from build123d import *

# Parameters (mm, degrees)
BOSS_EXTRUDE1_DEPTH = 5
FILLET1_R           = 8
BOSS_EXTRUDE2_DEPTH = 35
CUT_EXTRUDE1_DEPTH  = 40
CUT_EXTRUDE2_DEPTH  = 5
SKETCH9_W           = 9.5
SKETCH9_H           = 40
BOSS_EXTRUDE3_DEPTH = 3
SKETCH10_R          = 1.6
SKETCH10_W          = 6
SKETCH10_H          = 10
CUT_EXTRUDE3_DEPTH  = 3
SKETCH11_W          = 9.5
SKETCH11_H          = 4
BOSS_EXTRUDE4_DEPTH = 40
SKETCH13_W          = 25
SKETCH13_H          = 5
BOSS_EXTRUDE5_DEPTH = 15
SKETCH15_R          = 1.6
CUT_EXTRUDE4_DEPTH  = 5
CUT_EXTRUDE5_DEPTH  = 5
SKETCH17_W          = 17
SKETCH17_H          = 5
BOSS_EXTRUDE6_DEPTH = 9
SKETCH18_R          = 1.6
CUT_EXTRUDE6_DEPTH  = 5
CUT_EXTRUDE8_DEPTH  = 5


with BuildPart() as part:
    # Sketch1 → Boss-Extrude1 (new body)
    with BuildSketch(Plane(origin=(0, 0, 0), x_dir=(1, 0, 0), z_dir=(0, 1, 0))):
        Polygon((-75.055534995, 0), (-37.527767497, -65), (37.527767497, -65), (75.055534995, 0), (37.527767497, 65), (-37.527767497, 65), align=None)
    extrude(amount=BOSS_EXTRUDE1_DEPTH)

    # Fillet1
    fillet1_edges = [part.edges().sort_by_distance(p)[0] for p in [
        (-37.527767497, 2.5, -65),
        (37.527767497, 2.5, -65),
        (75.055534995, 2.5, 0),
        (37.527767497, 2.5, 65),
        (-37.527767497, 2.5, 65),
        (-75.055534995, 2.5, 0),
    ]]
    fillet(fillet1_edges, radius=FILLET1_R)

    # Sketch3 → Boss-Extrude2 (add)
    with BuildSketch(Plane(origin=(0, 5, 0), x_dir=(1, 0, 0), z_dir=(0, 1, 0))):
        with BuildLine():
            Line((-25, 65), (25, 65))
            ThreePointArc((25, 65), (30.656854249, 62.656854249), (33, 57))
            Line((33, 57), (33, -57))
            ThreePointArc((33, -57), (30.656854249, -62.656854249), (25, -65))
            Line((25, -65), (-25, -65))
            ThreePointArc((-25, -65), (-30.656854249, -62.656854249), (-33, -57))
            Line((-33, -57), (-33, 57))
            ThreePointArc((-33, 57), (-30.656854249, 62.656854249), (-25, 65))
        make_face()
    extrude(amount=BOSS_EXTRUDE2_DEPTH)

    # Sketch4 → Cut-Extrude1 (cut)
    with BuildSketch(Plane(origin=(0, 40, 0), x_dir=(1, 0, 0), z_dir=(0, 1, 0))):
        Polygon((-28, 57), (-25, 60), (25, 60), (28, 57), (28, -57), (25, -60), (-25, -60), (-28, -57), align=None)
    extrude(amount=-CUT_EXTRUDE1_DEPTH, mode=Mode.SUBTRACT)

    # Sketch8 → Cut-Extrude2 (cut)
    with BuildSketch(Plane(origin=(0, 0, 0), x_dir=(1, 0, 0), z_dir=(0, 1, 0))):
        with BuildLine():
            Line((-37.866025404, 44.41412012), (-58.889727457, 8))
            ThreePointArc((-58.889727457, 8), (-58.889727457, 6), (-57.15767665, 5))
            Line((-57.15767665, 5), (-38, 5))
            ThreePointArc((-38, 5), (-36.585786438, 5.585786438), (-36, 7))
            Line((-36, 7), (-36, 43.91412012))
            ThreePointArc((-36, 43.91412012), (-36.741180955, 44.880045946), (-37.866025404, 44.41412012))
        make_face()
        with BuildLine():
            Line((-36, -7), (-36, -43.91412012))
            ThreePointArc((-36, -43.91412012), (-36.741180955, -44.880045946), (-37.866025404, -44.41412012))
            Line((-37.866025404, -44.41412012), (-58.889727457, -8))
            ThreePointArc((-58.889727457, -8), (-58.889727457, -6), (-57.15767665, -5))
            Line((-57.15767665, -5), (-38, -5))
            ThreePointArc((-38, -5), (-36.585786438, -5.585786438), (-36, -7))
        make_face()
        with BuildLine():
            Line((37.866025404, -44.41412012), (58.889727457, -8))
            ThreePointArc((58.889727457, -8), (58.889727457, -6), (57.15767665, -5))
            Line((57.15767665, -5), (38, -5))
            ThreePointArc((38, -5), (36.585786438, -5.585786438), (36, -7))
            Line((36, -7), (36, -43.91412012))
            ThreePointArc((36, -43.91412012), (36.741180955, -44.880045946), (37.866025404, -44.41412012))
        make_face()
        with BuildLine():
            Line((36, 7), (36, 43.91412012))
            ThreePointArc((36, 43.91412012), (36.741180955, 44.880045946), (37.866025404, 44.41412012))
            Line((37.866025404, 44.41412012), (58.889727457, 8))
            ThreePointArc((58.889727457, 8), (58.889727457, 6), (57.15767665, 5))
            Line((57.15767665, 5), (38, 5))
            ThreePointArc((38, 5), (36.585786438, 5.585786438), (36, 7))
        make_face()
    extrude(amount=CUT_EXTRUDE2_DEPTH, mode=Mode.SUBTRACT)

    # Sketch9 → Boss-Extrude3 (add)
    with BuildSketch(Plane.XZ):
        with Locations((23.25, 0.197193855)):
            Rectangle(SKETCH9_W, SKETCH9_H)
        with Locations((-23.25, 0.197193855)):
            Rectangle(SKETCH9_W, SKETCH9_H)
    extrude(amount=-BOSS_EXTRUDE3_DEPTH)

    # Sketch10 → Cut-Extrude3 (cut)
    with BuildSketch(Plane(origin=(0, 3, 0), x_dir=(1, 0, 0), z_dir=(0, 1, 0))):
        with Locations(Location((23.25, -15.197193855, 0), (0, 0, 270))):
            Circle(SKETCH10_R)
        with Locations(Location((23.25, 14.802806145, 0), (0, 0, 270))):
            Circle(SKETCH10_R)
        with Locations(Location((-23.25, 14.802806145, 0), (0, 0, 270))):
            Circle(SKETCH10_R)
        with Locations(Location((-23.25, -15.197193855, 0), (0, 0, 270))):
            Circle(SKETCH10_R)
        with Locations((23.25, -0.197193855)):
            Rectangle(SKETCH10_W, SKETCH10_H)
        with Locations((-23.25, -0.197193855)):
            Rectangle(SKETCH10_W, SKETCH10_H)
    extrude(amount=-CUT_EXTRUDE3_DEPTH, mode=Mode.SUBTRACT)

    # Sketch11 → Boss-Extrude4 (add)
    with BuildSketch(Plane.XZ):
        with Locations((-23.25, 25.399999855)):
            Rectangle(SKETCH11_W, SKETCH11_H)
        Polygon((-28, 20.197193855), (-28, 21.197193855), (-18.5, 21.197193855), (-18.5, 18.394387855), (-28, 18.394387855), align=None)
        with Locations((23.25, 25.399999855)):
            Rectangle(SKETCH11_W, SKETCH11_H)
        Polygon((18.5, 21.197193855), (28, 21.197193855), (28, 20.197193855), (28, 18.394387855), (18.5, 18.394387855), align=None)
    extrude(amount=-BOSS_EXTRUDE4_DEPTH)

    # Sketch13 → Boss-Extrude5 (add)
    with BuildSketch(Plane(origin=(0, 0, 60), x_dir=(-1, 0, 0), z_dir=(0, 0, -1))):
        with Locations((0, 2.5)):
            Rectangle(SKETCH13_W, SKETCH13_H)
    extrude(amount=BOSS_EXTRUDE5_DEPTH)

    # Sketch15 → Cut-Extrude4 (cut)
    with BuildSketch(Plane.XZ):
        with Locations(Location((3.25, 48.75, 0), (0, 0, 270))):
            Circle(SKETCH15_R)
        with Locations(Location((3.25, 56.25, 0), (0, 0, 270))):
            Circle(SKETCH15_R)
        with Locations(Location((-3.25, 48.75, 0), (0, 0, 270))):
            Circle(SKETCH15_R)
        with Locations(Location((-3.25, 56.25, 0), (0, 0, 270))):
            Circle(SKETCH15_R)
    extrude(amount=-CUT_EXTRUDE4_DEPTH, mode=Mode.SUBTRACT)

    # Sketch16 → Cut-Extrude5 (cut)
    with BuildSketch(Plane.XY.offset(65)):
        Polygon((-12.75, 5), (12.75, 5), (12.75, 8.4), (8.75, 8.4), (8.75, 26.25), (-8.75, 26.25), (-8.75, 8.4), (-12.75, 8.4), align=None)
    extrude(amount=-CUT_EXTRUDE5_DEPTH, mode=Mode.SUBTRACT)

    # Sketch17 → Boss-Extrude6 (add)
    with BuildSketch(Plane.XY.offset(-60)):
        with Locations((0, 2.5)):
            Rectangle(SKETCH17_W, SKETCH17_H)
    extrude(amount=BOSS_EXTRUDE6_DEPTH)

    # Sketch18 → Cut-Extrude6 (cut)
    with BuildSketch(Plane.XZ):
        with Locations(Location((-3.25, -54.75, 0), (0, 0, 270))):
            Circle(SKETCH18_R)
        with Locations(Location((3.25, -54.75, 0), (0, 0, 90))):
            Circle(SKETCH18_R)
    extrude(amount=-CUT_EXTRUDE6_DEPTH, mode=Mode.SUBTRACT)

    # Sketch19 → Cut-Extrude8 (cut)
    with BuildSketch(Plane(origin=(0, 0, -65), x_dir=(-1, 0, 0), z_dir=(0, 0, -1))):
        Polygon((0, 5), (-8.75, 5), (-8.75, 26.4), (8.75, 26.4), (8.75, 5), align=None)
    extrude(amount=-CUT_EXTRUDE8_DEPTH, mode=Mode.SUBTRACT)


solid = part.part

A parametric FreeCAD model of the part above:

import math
import FreeCAD as App
import Part
import Sketcher
from FreeCAD import Vector
Q = App.Units.Quantity


def edges_at(feature, points):
    """Names of the edges that pass closest to the given points."""
    edges = feature.Shape.Edges
    near = lambda p: min(range(len(edges)), key=lambda i: edges[i].distToShape(Part.Vertex(*p))[0])
    return sorted({f"Edge{near(p) + 1}" for p in points})

doc = App.newDocument("Part")
body = doc.addObject("PartDesign::Body", "Body")

# Sketch on XZ plane
sketch1 = body.newObject("Sketcher::SketchObject", "Sketch")
sketch1.AttachmentSupport = (doc.getObject("XZ_Plane"), [""])
sketch1.MapMode = "FlatFace"
sketch1.addGeometry([
    Part.LineSegment(Vector(-75.055535, 0, 0), Vector(-37.527767, 65, 0)),  # 0
    Part.LineSegment(Vector(-37.527767, 65, 0), Vector(37.527767, 65, 0)),  # 1
    Part.LineSegment(Vector(37.527767, 65, 0), Vector(75.055535, 0, 0)),  # 2
    Part.LineSegment(Vector(75.055535, 0, 0), Vector(37.527767, -65, 0)),  # 3
    Part.LineSegment(Vector(37.527767, -65, 0), Vector(-37.527767, -65, 0)),  # 4
    Part.LineSegment(Vector(-37.527767, -65, 0), Vector(-75.055535, 0, 0)),  # 5
], False)
sketch1.addConstraint([
    Sketcher.Constraint("Coincident", 0, 2, 1, 1),
    Sketcher.Constraint("Coincident", 1, 2, 2, 1),
    Sketcher.Constraint("Coincident", 2, 2, 3, 1),
    Sketcher.Constraint("Coincident", 3, 2, 4, 1),
    Sketcher.Constraint("Coincident", 4, 2, 5, 1),
    Sketcher.Constraint("Coincident", 5, 2, 0, 1),
    Sketcher.Constraint("Horizontal", 1),
    Sketcher.Constraint("Horizontal", 4),
    Sketcher.Constraint("Symmetric", 0, 2, 3, 2, -1, 1),
    Sketcher.Constraint("Symmetric", 2, 2, 5, 2, -1, 1),
    Sketcher.Constraint("PointOnObject", 2, 2, -1),
    Sketcher.Constraint("Parallel", 2, 5),
    Sketcher.Constraint("Vertical", 1, 2, 3, 2),
    Sketcher.Constraint("Angle", 0, Q("60 deg")),
    Sketcher.Constraint("DistanceY", -1, 1, 0, 2, 65.0),
    Sketcher.Constraint("DistanceX", 1, 1, 1, 2, 75.055535),
])
pad1 = body.newObject("PartDesign::Pad", "Pad")
pad1.Profile = sketch1
pad1.Length = 5
pad1.Reversed = True
doc.recompute()

fillet = body.newObject("PartDesign::Fillet", "Fillet")
fillet.Base = (pad1, edges_at(pad1, [
    (-37.528, 2.5, -65),
    (37.528, 2.5, -65),
    (75.056, 2.5, 0),
    (37.528, 2.5, 65),
    (-37.528, 2.5, 65),
    (-75.056, 2.5, 0),
]))
fillet.Radius = 8

# Sketch on XZ plane
sketch2 = body.newObject("Sketcher::SketchObject", "Sketch001")
sketch2.AttachmentSupport = (doc.getObject("XZ_Plane"), [""])
sketch2.MapMode = "FlatFace"
sketch2.AttachmentOffset = App.Placement(Vector(0, 0, -5), App.Rotation())
sketch2.addGeometry([
    Part.LineSegment(Vector(25, -65, 0), Vector(-25, -65, 0)),  # 0
    Part.ArcOfCircle(Part.Circle(Vector(-25, -57, 0), Vector(0, 0, 1), 8), math.radians(-180), math.radians(-90)),  # 1
    Part.LineSegment(Vector(-33, -57, 0), Vector(-33, 57, 0)),  # 2
    Part.ArcOfCircle(Part.Circle(Vector(-25, 57, 0), Vector(0, 0, 1), 8), math.radians(90), math.radians(180)),  # 3
    Part.LineSegment(Vector(-25, 65, 0), Vector(25, 65, 0)),  # 4
    Part.ArcOfCircle(Part.Circle(Vector(25, 57, 0), Vector(0, 0, 1), 8), math.radians(0), math.radians(90)),  # 5
    Part.LineSegment(Vector(33, 57, 0), Vector(33, -57, 0)),  # 6
    Part.ArcOfCircle(Part.Circle(Vector(25, -57, 0), Vector(0, 0, 1), 8), math.radians(-90), math.radians(0)),  # 7
], False)
sketch2.addConstraint([
    Sketcher.Constraint("Tangent", 0, 2, 1, 2),
    Sketcher.Constraint("Tangent", 1, 1, 2, 1),
    Sketcher.Constraint("Tangent", 2, 2, 3, 2),
    Sketcher.Constraint("Tangent", 3, 1, 4, 1),
    Sketcher.Constraint("Tangent", 4, 2, 5, 2),
    Sketcher.Constraint("Tangent", 5, 1, 6, 1),
    Sketcher.Constraint("Tangent", 6, 2, 7, 2),
    Sketcher.Constraint("Tangent", 7, 1, 0, 1),
    Sketcher.Constraint("Horizontal", 0),
    Sketcher.Constraint("Vertical", 2),
    Sketcher.Constraint("Horizontal", 4),
    Sketcher.Constraint("Vertical", 6),
    Sketcher.Constraint("Equal", 1, 3),
    Sketcher.Constraint("Equal", 3, 5),
    Sketcher.Constraint("Equal", 5, 7),
    Sketcher.Constraint("Symmetric", 1, 3, 5, 3, -1, 1),
    Sketcher.Constraint("Radius", 1, 8.0),
    Sketcher.Constraint("DistanceX", 0, 2, 0, 1, 50.0),
    Sketcher.Constraint("DistanceY", 2, 1, 2, 2, 114.0),
])
pad2 = body.newObject("PartDesign::Pad", "Pad001")
pad2.Profile = sketch2
pad2.Length = 35
pad2.Reversed = True

# Sketch on XZ plane
sketch3 = body.newObject("Sketcher::SketchObject", "Sketch002")
sketch3.AttachmentSupport = (doc.getObject("XZ_Plane"), [""])
sketch3.MapMode = "FlatFace"
sketch3.AttachmentOffset = App.Placement(Vector(0, 0, -40), App.Rotation())
sketch3.addGeometry([
    Part.LineSegment(Vector(-25, -60, 0), Vector(-28, -57, 0)),  # 0
    Part.LineSegment(Vector(-28, -57, 0), Vector(-28, 57, 0)),  # 1
    Part.LineSegment(Vector(-28, 57, 0), Vector(-25, 60, 0)),  # 2
    Part.LineSegment(Vector(-25, 60, 0), Vector(25, 60, 0)),  # 3
    Part.LineSegment(Vector(25, 60, 0), Vector(28, 57, 0)),  # 4
    Part.LineSegment(Vector(28, 57, 0), Vector(28, -57, 0)),  # 5
    Part.LineSegment(Vector(28, -57, 0), Vector(25, -60, 0)),  # 6
    Part.LineSegment(Vector(25, -60, 0), Vector(-25, -60, 0)),  # 7
], False)
sketch3.addConstraint([
    Sketcher.Constraint("Coincident", 0, 2, 1, 1),
    Sketcher.Constraint("Coincident", 1, 2, 2, 1),
    Sketcher.Constraint("Coincident", 2, 2, 3, 1),
    Sketcher.Constraint("Coincident", 3, 2, 4, 1),
    Sketcher.Constraint("Coincident", 4, 2, 5, 1),
    Sketcher.Constraint("Coincident", 5, 2, 6, 1),
    Sketcher.Constraint("Coincident", 6, 2, 7, 1),
    Sketcher.Constraint("Coincident", 7, 2, 0, 1),
    Sketcher.Constraint("Vertical", 1),
    Sketcher.Constraint("Horizontal", 3),
    Sketcher.Constraint("Vertical", 5),
    Sketcher.Constraint("Horizontal", 7),
    Sketcher.Constraint("Symmetric", 0, 2, 4, 2, -1, 1),
    Sketcher.Constraint("Symmetric", 2, 2, 6, 2, -1, 1),
    Sketcher.Constraint("Perpendicular", 0, 2),
    Sketcher.Constraint("Perpendicular", 2, 4),
    Sketcher.Constraint("Perpendicular", 4, 6),
    Sketcher.Constraint("Horizontal", 1, 2, 4, 2),
    Sketcher.Constraint("Vertical", 3, 2, 6, 2),
    Sketcher.Constraint("DistanceX", 3, 1, 3, 2, 50.0),
    Sketcher.Constraint("DistanceY", 1, 1, 1, 2, 114.0),
    Sketcher.Constraint("DistanceX", 0, 2, -1, 1, 28.0),
])
pocket1 = body.newObject("PartDesign::Pocket", "Pocket")
pocket1.Profile = sketch3
pocket1.Length = 40
pocket1.Reversed = True

# Sketch on XZ plane
sketch4 = body.newObject("Sketcher::SketchObject", "Sketch003")
sketch4.AttachmentSupport = (doc.getObject("XZ_Plane"), [""])
sketch4.MapMode = "FlatFace"
sketch4.addGeometry([
    Part.LineSegment(Vector(-37.866025, -44.41412, 0), Vector(-58.889727, -8, 0)),  # 0
    Part.ArcOfCircle(Part.Circle(Vector(-57.157677, -7, 0), Vector(0, 0, 1), 2), math.radians(90), math.radians(210)),  # 1
    Part.LineSegment(Vector(-57.157677, -5, 0), Vector(-38, -5, 0)),  # 2
    Part.ArcOfCircle(Part.Circle(Vector(-38, -7, 0), Vector(0, 0, 1), 2), math.radians(0), math.radians(90)),  # 3
    Part.LineSegment(Vector(-36, -7, 0), Vector(-36, -43.91412, 0)),  # 4
    Part.ArcOfCircle(Part.Circle(Vector(-37, -43.91412, 0), Vector(0, 0, 1), 1), math.radians(-150), math.radians(0)),  # 5
    Part.LineSegment(Vector(-36, 43.91412, 0), Vector(-36, 7, 0)),  # 6
    Part.ArcOfCircle(Part.Circle(Vector(-38, 7, 0), Vector(0, 0, 1), 2), math.radians(-90), math.radians(0)),  # 7
    Part.LineSegment(Vector(-38, 5, 0), Vector(-57.157677, 5, 0)),  # 8
    Part.ArcOfCircle(Part.Circle(Vector(-57.157677, 7, 0), Vector(0, 0, 1), 2), math.radians(150), math.radians(270)),  # 9
    Part.LineSegment(Vector(-58.889727, 8, 0), Vector(-37.866025, 44.41412, 0)),  # 10
    Part.ArcOfCircle(Part.Circle(Vector(-37, 43.91412, 0), Vector(0, 0, 1), 1), math.radians(0), math.radians(150)),  # 11
    Part.LineSegment(Vector(37.866025, 44.41412, 0), Vector(58.889727, 8, 0)),  # 12
    Part.ArcOfCircle(Part.Circle(Vector(57.157677, 7, 0), Vector(0, 0, 1), 2), math.radians(-90), math.radians(30)),  # 13
    Part.LineSegment(Vector(57.157677, 5, 0), Vector(38, 5, 0)),  # 14
    Part.ArcOfCircle(Part.Circle(Vector(38, 7, 0), Vector(0, 0, 1), 2), math.radians(-180), math.radians(-90)),  # 15
    Part.LineSegment(Vector(36, 7, 0), Vector(36, 43.91412, 0)),  # 16
    Part.ArcOfCircle(Part.Circle(Vector(37, 43.91412, 0), Vector(0, 0, 1), 1), math.radians(30), math.radians(180)),  # 17
    Part.LineSegment(Vector(36, -43.91412, 0), Vector(36, -7, 0)),  # 18
    Part.ArcOfCircle(Part.Circle(Vector(38, -7, 0), Vector(0, 0, 1), 2), math.radians(90), math.radians(180)),  # 19
    Part.LineSegment(Vector(38, -5, 0), Vector(57.157677, -5, 0)),  # 20
    Part.ArcOfCircle(Part.Circle(Vector(57.157677, -7, 0), Vector(0, 0, 1), 2), math.radians(-30), math.radians(90)),  # 21
    Part.LineSegment(Vector(58.889727, -8, 0), Vector(37.866025, -44.41412, 0)),  # 22
    Part.ArcOfCircle(Part.Circle(Vector(37, -43.91412, 0), Vector(0, 0, 1), 1), math.radians(180), math.radians(330)),  # 23
], False)
sketch4.addConstraint([
    Sketcher.Constraint("Tangent", 0, 2, 1, 2),
    Sketcher.Constraint("Tangent", 1, 1, 2, 1),
    Sketcher.Constraint("Tangent", 2, 2, 3, 2),
    Sketcher.Constraint("Tangent", 3, 1, 4, 1),
    Sketcher.Constraint("Tangent", 4, 2, 5, 2),
    Sketcher.Constraint("Tangent", 5, 1, 0, 1),
    Sketcher.Constraint("Tangent", 6, 2, 7, 2),
    Sketcher.Constraint("Tangent", 7, 1, 8, 1),
    Sketcher.Constraint("Tangent", 8, 2, 9, 2),
    Sketcher.Constraint("Tangent", 9, 1, 10, 1),
    Sketcher.Constraint("Tangent", 10, 2, 11, 2),
    Sketcher.Constraint("Tangent", 11, 1, 6, 1),
    Sketcher.Constraint("Tangent", 12, 2, 13, 2),
    Sketcher.Constraint("Tangent", 13, 1, 14, 1),
    Sketcher.Constraint("Tangent", 14, 2, 15, 2),
    Sketcher.Constraint("Tangent", 15, 1, 16, 1),
    Sketcher.Constraint("Tangent", 16, 2, 17, 2),
    Sketcher.Constraint("Tangent", 17, 1, 12, 1),
    Sketcher.Constraint("Tangent", 18, 2, 19, 2),
    Sketcher.Constraint("Tangent", 19, 1, 20, 1),
    Sketcher.Constraint("Tangent", 20, 2, 21, 2),
    Sketcher.Constraint("Tangent", 21, 1, 22, 1),
    Sketcher.Constraint("Tangent", 22, 2, 23, 2),
    Sketcher.Constraint("Tangent", 23, 1, 18, 1),
    Sketcher.Constraint("Horizontal", 2),
    Sketcher.Constraint("Vertical", 4),
    Sketcher.Constraint("Vertical", 6),
    Sketcher.Constraint("Horizontal", 8),
    Sketcher.Constraint("Horizontal", 14),
    Sketcher.Constraint("Vertical", 16),
    Sketcher.Constraint("Vertical", 18),
    Sketcher.Constraint("Horizontal", 20),
    Sketcher.Constraint("Equal", 1, 3),
    Sketcher.Constraint("Equal", 3, 7),
    Sketcher.Constraint("Equal", 7, 9),
    Sketcher.Constraint("Equal", 5, 11),
    Sketcher.Constraint("Equal", 9, 13),
    Sketcher.Constraint("Equal", 13, 15),
    Sketcher.Constraint("Equal", 11, 17),
    Sketcher.Constraint("Equal", 15, 19),
    Sketcher.Constraint("Equal", 19, 21),
    Sketcher.Constraint("Equal", 17, 23),
    Sketcher.Constraint("Symmetric", 1, 3, 13, 3, -1, 1),
    Sketcher.Constraint("Symmetric", 5, 3, 17, 3, -1, 1),
    Sketcher.Constraint("Symmetric", 7, 3, 19, 3, -1, 1),
    Sketcher.Constraint("Symmetric", 9, 1, 21, 1, -1, 1),
    Sketcher.Constraint("Symmetric", 9, 3, 13, 3, -2),
    Sketcher.Constraint("Symmetric", 11, 3, 17, 3, -2),
    Sketcher.Constraint("Radius", 1, 2.0),
    Sketcher.Constraint("Radius", 5, 1.0),
    Sketcher.Constraint("Angle", 0, Q("120 deg")),
    Sketcher.Constraint("DistanceY", 1, 3, -1, 1, 7.0),
    Sketcher.Constraint("DistanceX", 3, 3, -1, 1, 38.0),
    Sketcher.Constraint("DistanceY", 4, 2, 4, 1, 36.91412),
])
pocket2 = body.newObject("PartDesign::Pocket", "Pocket001")
pocket2.Profile = sketch4
pocket2.Length = 5

# Sketch on XZ plane
sketch5 = body.newObject("Sketcher::SketchObject", "Sketch004")
sketch5.AttachmentSupport = (doc.getObject("XZ_Plane"), [""])
sketch5.MapMode = "FlatFace"
sketch5.addGeometry([
    Part.LineSegment(Vector(18.5, 20.197194, 0), Vector(18.5, -19.802806, 0)),  # 0
    Part.LineSegment(Vector(18.5, -19.802806, 0), Vector(28, -19.802806, 0)),  # 1
    Part.LineSegment(Vector(28, -19.802806, 0), Vector(28, 20.197194, 0)),  # 2
    Part.LineSegment(Vector(28, 20.197194, 0), Vector(18.5, 20.197194, 0)),  # 3
    Part.LineSegment(Vector(-28, 20.197194, 0), Vector(-28, -19.802806, 0)),  # 4
    Part.LineSegment(Vector(-28, -19.802806, 0), Vector(-18.5, -19.802806, 0)),  # 5
    Part.LineSegment(Vector(-18.5, -19.802806, 0), Vector(-18.5, 20.197194, 0)),  # 6
    Part.LineSegment(Vector(-18.5, 20.197194, 0), Vector(-28, 20.197194, 0)),  # 7
], False)
sketch5.addConstraint([
    Sketcher.Constraint("Coincident", 0, 2, 1, 1),
    Sketcher.Constraint("Coincident", 1, 2, 2, 1),
    Sketcher.Constraint("Coincident", 2, 2, 3, 1),
    Sketcher.Constraint("Coincident", 3, 2, 0, 1),
    Sketcher.Constraint("Coincident", 4, 2, 5, 1),
    Sketcher.Constraint("Coincident", 5, 2, 6, 1),
    Sketcher.Constraint("Coincident", 6, 2, 7, 1),
    Sketcher.Constraint("Coincident", 7, 2, 4, 1),
    Sketcher.Constraint("Vertical", 0),
    Sketcher.Constraint("Horizontal", 1),
    Sketcher.Constraint("Vertical", 2),
    Sketcher.Constraint("Horizontal", 3),
    Sketcher.Constraint("Vertical", 4),
    Sketcher.Constraint("Horizontal", 5),
    Sketcher.Constraint("Vertical", 6),
    Sketcher.Constraint("Horizontal", 7),
    Sketcher.Constraint("Symmetric", 1, 2, 4, 2, -2),
    Sketcher.Constraint("Symmetric", 3, 2, 6, 2, -2),
    Sketcher.Constraint("DistanceY", 0, 2, 0, 1, 40.0),
    Sketcher.Constraint("DistanceX", 1, 1, 1, 2, 9.5),
    Sketcher.Constraint("DistanceX", -1, 1, 1, 2, 28.0),
    Sketcher.Constraint("DistanceY", 0, 2, -1, 1, 19.802806),
])
pad3 = body.newObject("PartDesign::Pad", "Pad002")
pad3.Profile = sketch5
pad3.Length = 3
pad3.Reversed = True

# Sketch on XZ plane
sketch6 = body.newObject("Sketcher::SketchObject", "Sketch005")
sketch6.AttachmentSupport = (doc.getObject("XZ_Plane"), [""])
sketch6.MapMode = "FlatFace"
sketch6.AttachmentOffset = App.Placement(Vector(0, 0, -3), App.Rotation())
sketch6.addGeometry([
    Part.Circle(Vector(23.25, 15.197194, 0), Vector(0, 0, 1), 1.6),  # 0
    Part.Circle(Vector(23.25, -14.802806, 0), Vector(0, 0, 1), 1.6),  # 1
    Part.Circle(Vector(-23.25, -14.802806, 0), Vector(0, 0, 1), 1.6),  # 2
    Part.Circle(Vector(-23.25, 15.197194, 0), Vector(0, 0, 1), 1.6),  # 3
    Part.LineSegment(Vector(20.25, -4.802806, 0), Vector(20.25, 5.197194, 0)),  # 4
    Part.LineSegment(Vector(20.25, 5.197194, 0), Vector(26.25, 5.197194, 0)),  # 5
    Part.LineSegment(Vector(26.25, 5.197194, 0), Vector(26.25, -4.802806, 0)),  # 6
    Part.LineSegment(Vector(26.25, -4.802806, 0), Vector(20.25, -4.802806, 0)),  # 7
    Part.LineSegment(Vector(-26.25, -4.802806, 0), Vector(-26.25, 5.197194, 0)),  # 8
    Part.LineSegment(Vector(-26.25, 5.197194, 0), Vector(-20.25, 5.197194, 0)),  # 9
    Part.LineSegment(Vector(-20.25, 5.197194, 0), Vector(-20.25, -4.802806, 0)),  # 10
    Part.LineSegment(Vector(-20.25, -4.802806, 0), Vector(-26.25, -4.802806, 0)),  # 11
], False)
sketch6.addConstraint([
    Sketcher.Constraint("Coincident", 4, 2, 5, 1),
    Sketcher.Constraint("Coincident", 5, 2, 6, 1),
    Sketcher.Constraint("Coincident", 6, 2, 7, 1),
    Sketcher.Constraint("Coincident", 7, 2, 4, 1),
    Sketcher.Constraint("Coincident", 8, 2, 9, 1),
    Sketcher.Constraint("Coincident", 9, 2, 10, 1),
    Sketcher.Constraint("Coincident", 10, 2, 11, 1),
    Sketcher.Constraint("Coincident", 11, 2, 8, 1),
    Sketcher.Constraint("Vertical", 4),
    Sketcher.Constraint("Horizontal", 5),
    Sketcher.Constraint("Vertical", 6),
    Sketcher.Constraint("Horizontal", 7),
    Sketcher.Constraint("Vertical", 8),
    Sketcher.Constraint("Horizontal", 9),
    Sketcher.Constraint("Vertical", 10),
    Sketcher.Constraint("Horizontal", 11),
    Sketcher.Constraint("Equal", 0, 1),
    Sketcher.Constraint("Equal", 1, 2),
    Sketcher.Constraint("Equal", 2, 3),
    Sketcher.Constraint("Symmetric", 1, 3, 2, 3, -2),
    Sketcher.Constraint("Symmetric", 0, 3, 3, 3, -2),
    Sketcher.Constraint("Symmetric", 5, 2, 8, 2, -2),
    Sketcher.Constraint("Symmetric", 7, 2, 10, 2, -2),
    Sketcher.Constraint("Vertical", 0, 3, 1, 3),
    Sketcher.Constraint("Diameter", 0, 3.2),
    Sketcher.Constraint("DistanceX", 5, 1, 5, 2, 6.0),
    Sketcher.Constraint("DistanceY", 4, 1, 4, 2, 10.0),
    Sketcher.Constraint("DistanceY", 1, 3, 0, 3, 30.0),
    Sketcher.Constraint("DistanceX", 4, 2, 0, 3, 3.0),
    Sketcher.Constraint("DistanceY", 4, 2, 0, 3, 10.0),
    Sketcher.Constraint("DistanceX", 2, 3, 1, 3, 46.5),
    Sketcher.Constraint("DistanceY", -1, 1, 0, 3, 15.197194),
])
pocket3 = body.newObject("PartDesign::Pocket", "Pocket002")
pocket3.Profile = sketch6
pocket3.Length = 3
pocket3.Reversed = True

# Sketch on XZ plane
sketch7 = body.newObject("Sketcher::SketchObject", "Sketch006")
sketch7.AttachmentSupport = (doc.getObject("XZ_Plane"), [""])
sketch7.MapMode = "FlatFace"
sketch7.addGeometry([
    Part.LineSegment(Vector(-28, 27.4, 0), Vector(-28, 23.4, 0)),  # 0
    Part.LineSegment(Vector(-28, 23.4, 0), Vector(-18.5, 23.4, 0)),  # 1
    Part.LineSegment(Vector(-18.5, 23.4, 0), Vector(-18.5, 27.4, 0)),  # 2
    Part.LineSegment(Vector(-18.5, 27.4, 0), Vector(-28, 27.4, 0)),  # 3
    Part.LineSegment(Vector(-28, 21.197194, 0), Vector(-28, 18.394388, 0)),  # 4
    Part.LineSegment(Vector(-28, 18.394388, 0), Vector(-18.5, 18.394388, 0)),  # 5
    Part.LineSegment(Vector(-18.5, 18.394388, 0), Vector(-18.5, 21.197194, 0)),  # 6
    Part.LineSegment(Vector(-18.5, 21.197194, 0), Vector(-28, 21.197194, 0)),  # 7
    Part.LineSegment(Vector(18.5, 27.4, 0), Vector(18.5, 23.4, 0)),  # 8
    Part.LineSegment(Vector(18.5, 23.4, 0), Vector(28, 23.4, 0)),  # 9
    Part.LineSegment(Vector(28, 23.4, 0), Vector(28, 27.4, 0)),  # 10
    Part.LineSegment(Vector(28, 27.4, 0), Vector(18.5, 27.4, 0)),  # 11
    Part.LineSegment(Vector(28, 21.197194, 0), Vector(18.5, 21.197194, 0)),  # 12
    Part.LineSegment(Vector(18.5, 21.197194, 0), Vector(18.5, 18.394388, 0)),  # 13
    Part.LineSegment(Vector(18.5, 18.394388, 0), Vector(28, 18.394388, 0)),  # 14
    Part.LineSegment(Vector(28, 18.394388, 0), Vector(28, 21.197194, 0)),  # 15
], False)
sketch7.addConstraint([
    Sketcher.Constraint("Coincident", 0, 2, 1, 1),
    Sketcher.Constraint("Coincident", 1, 2, 2, 1),
    Sketcher.Constraint("Coincident", 2, 2, 3, 1),
    Sketcher.Constraint("Coincident", 3, 2, 0, 1),
    Sketcher.Constraint("Coincident", 4, 2, 5, 1),
    Sketcher.Constraint("Coincident", 5, 2, 6, 1),
    Sketcher.Constraint("Coincident", 6, 2, 7, 1),
    Sketcher.Constraint("Coincident", 7, 2, 4, 1),
    Sketcher.Constraint("Coincident", 8, 2, 9, 1),
    Sketcher.Constraint("Coincident", 9, 2, 10, 1),
    Sketcher.Constraint("Coincident", 10, 2, 11, 1),
    Sketcher.Constraint("Coincident", 11, 2, 8, 1),
    Sketcher.Constraint("Coincident", 12, 2, 13, 1),
    Sketcher.Constraint("Coincident", 13, 2, 14, 1),
    Sketcher.Constraint("Coincident", 14, 2, 15, 1),
    Sketcher.Constraint("Coincident", 15, 2, 12, 1),
    Sketcher.Constraint("Vertical", 0),
    Sketcher.Constraint("Horizontal", 1),
    Sketcher.Constraint("Vertical", 2),
    Sketcher.Constraint("Horizontal", 3),
    Sketcher.Constraint("Vertical", 4),
    Sketcher.Constraint("Horizontal", 5),
    Sketcher.Constraint("Vertical", 6),
    Sketcher.Constraint("Horizontal", 7),
    Sketcher.Constraint("Vertical", 8),
    Sketcher.Constraint("Horizontal", 9),
    Sketcher.Constraint("Vertical", 10),
    Sketcher.Constraint("Horizontal", 11),
    Sketcher.Constraint("Horizontal", 12),
    Sketcher.Constraint("Vertical", 13),
    Sketcher.Constraint("Horizontal", 14),
    Sketcher.Constraint("Vertical", 15),
    Sketcher.Constraint("Symmetric", 1, 2, 8, 2, -2),
    Sketcher.Constraint("Symmetric", 3, 2, 10, 2, -2),
    Sketcher.Constraint("Symmetric", 6, 2, 12, 2, -2),
    Sketcher.Constraint("Symmetric", 4, 2, 14, 2, -2),
    Sketcher.Constraint("Vertical", 3, 2, 4, 2),
    Sketcher.Constraint("Vertical", 2, 2, 5, 2),
    Sketcher.Constraint("DistanceY", 0, 2, 0, 1, 4.0),
    Sketcher.Constraint("DistanceX", 1, 1, 1, 2, 9.5),
    Sketcher.Constraint("DistanceX", 0, 2, -1, 1, 28.0),
    Sketcher.Constraint("DistanceY", -1, 1, 0, 2, 23.4),
    Sketcher.Constraint("DistanceY", 4, 2, 4, 1, 2.802806),
    Sketcher.Constraint("DistanceY", 4, 2, 0, 2, 5.005612),
])
pad4 = body.newObject("PartDesign::Pad", "Pad003")
pad4.Profile = sketch7
pad4.Length = 40
pad4.Reversed = True

# Sketch on XY plane
sketch8 = body.newObject("Sketcher::SketchObject", "Sketch007")
sketch8.AttachmentSupport = (doc.getObject("XY_Plane"), [""])
sketch8.MapMode = "FlatFace"
sketch8.AttachmentOffset = App.Placement(Vector(0, 0, 60), App.Rotation())
sketch8.addGeometry([
    Part.LineSegment(Vector(12.5, 5, 0), Vector(12.5, 0, 0)),
    Part.LineSegment(Vector(12.5, 0, 0), Vector(-12.5, 0, 0)),
    Part.LineSegment(Vector(-12.5, 0, 0), Vector(-12.5, 5, 0)),
    Part.LineSegment(Vector(-12.5, 5, 0), Vector(12.5, 5, 0)),
], False)
sketch8.addConstraint([
    Sketcher.Constraint("Coincident", 0, 2, 1, 1),
    Sketcher.Constraint("Coincident", 1, 2, 2, 1),
    Sketcher.Constraint("Coincident", 2, 2, 3, 1),
    Sketcher.Constraint("Coincident", 3, 2, 0, 1),
    Sketcher.Constraint("Vertical", 0),
    Sketcher.Constraint("Horizontal", 1),
    Sketcher.Constraint("Vertical", 2),
    Sketcher.Constraint("Horizontal", 3),
    Sketcher.Constraint("Symmetric", 0, 2, 1, 2, -1, 1),
    Sketcher.Constraint("DistanceX", 1, 2, 1, 1, 25.0),
    Sketcher.Constraint("DistanceY", 0, 2, 0, 1, 5.0),
])
pad5 = body.newObject("PartDesign::Pad", "Pad004")
pad5.Profile = sketch8
pad5.Length = 15
pad5.Reversed = True

# Sketch on XZ plane
sketch9 = body.newObject("Sketcher::SketchObject", "Sketch008")
sketch9.AttachmentSupport = (doc.getObject("XZ_Plane"), [""])
sketch9.MapMode = "FlatFace"
sketch9.addGeometry([
    Part.Circle(Vector(3.25, 48.75, 0), Vector(0, 0, 1), 1.6),
    Part.Circle(Vector(3.25, 56.25, 0), Vector(0, 0, 1), 1.6),
    Part.Circle(Vector(-3.25, 48.75, 0), Vector(0, 0, 1), 1.6),
    Part.Circle(Vector(-3.25, 56.25, 0), Vector(0, 0, 1), 1.6),
], False)
sketch9.addConstraint([
    Sketcher.Constraint("Equal", 0, 1),
    Sketcher.Constraint("Equal", 1, 2),
    Sketcher.Constraint("Equal", 2, 3),
    Sketcher.Constraint("Symmetric", 0, 3, 2, 3, -2),
    Sketcher.Constraint("Symmetric", 1, 3, 3, 3, -2),
    Sketcher.Constraint("Vertical", 0, 3, 1, 3),
    Sketcher.Constraint("Diameter", 0, 3.2),
    Sketcher.Constraint("DistanceY", 0, 3, 1, 3, 7.5),
    Sketcher.Constraint("DistanceX", 2, 3, 0, 3, 6.5),
    Sketcher.Constraint("DistanceY", -1, 1, 0, 3, 48.75),
])
pocket4 = body.newObject("PartDesign::Pocket", "Pocket003")
pocket4.Profile = sketch9
pocket4.Length = 5

# Sketch on XY plane
sketch10 = body.newObject("Sketcher::SketchObject", "Sketch009")
sketch10.AttachmentSupport = (doc.getObject("XY_Plane"), [""])
sketch10.MapMode = "FlatFace"
sketch10.AttachmentOffset = App.Placement(Vector(0, 0, 65), App.Rotation())
sketch10.addGeometry([
    Part.LineSegment(Vector(-12.75, 5, 0), Vector(12.75, 5, 0)),  # 0
    Part.LineSegment(Vector(12.75, 5, 0), Vector(12.75, 8.4, 0)),  # 1
    Part.LineSegment(Vector(12.75, 8.4, 0), Vector(8.75, 8.4, 0)),  # 2
    Part.LineSegment(Vector(8.75, 8.4, 0), Vector(8.75, 26.25, 0)),  # 3
    Part.LineSegment(Vector(8.75, 26.25, 0), Vector(-8.75, 26.25, 0)),  # 4
    Part.LineSegment(Vector(-8.75, 26.25, 0), Vector(-8.75, 8.4, 0)),  # 5
    Part.LineSegment(Vector(-8.75, 8.4, 0), Vector(-12.75, 8.4, 0)),  # 6
    Part.LineSegment(Vector(-12.75, 8.4, 0), Vector(-12.75, 5, 0)),  # 7
], False)
sketch10.addConstraint([
    Sketcher.Constraint("Coincident", 0, 2, 1, 1),
    Sketcher.Constraint("Coincident", 1, 2, 2, 1),
    Sketcher.Constraint("Coincident", 2, 2, 3, 1),
    Sketcher.Constraint("Coincident", 3, 2, 4, 1),
    Sketcher.Constraint("Coincident", 4, 2, 5, 1),
    Sketcher.Constraint("Coincident", 5, 2, 6, 1),
    Sketcher.Constraint("Coincident", 6, 2, 7, 1),
    Sketcher.Constraint("Coincident", 7, 2, 0, 1),
    Sketcher.Constraint("Horizontal", 0),
    Sketcher.Constraint("Vertical", 1),
    Sketcher.Constraint("Horizontal", 2),
    Sketcher.Constraint("Vertical", 3),
    Sketcher.Constraint("Horizontal", 4),
    Sketcher.Constraint("Vertical", 5),
    Sketcher.Constraint("Horizontal", 6),
    Sketcher.Constraint("Vertical", 7),
    Sketcher.Constraint("Symmetric", 2, 2, 5, 2, -2),
    Sketcher.Constraint("Equal", 2, 6),
    Sketcher.Constraint("DistanceX", 2, 2, 2, 1, 4.0),
    Sketcher.Constraint("DistanceX", 0, 1, 0, 2, 25.5),
    Sketcher.Constraint("DistanceY", 1, 1, 1, 2, 3.4),
    Sketcher.Constraint("DistanceY", -1, 1, 0, 2, 5.0),
    Sketcher.Constraint("DistanceY", 3, 1, 3, 2, 17.85),
])
pocket5 = body.newObject("PartDesign::Pocket", "Pocket004")
pocket5.Profile = sketch10
pocket5.Length = 5

# Sketch on XY plane
sketch11 = body.newObject("Sketcher::SketchObject", "Sketch010")
sketch11.AttachmentSupport = (doc.getObject("XY_Plane"), [""])
sketch11.MapMode = "FlatFace"
sketch11.AttachmentOffset = App.Placement(Vector(0, 0, -60), App.Rotation())
sketch11.addGeometry([
    Part.LineSegment(Vector(-8.5, 5, 0), Vector(-8.5, 0, 0)),
    Part.LineSegment(Vector(-8.5, 0, 0), Vector(8.5, 0, 0)),
    Part.LineSegment(Vector(8.5, 0, 0), Vector(8.5, 5, 0)),
    Part.LineSegment(Vector(8.5, 5, 0), Vector(-8.5, 5, 0)),
], False)
sketch11.addConstraint([
    Sketcher.Constraint("Coincident", 0, 2, 1, 1),
    Sketcher.Constraint("Coincident", 1, 2, 2, 1),
    Sketcher.Constraint("Coincident", 2, 2, 3, 1),
    Sketcher.Constraint("Coincident", 3, 2, 0, 1),
    Sketcher.Constraint("Vertical", 0),
    Sketcher.Constraint("Horizontal", 1),
    Sketcher.Constraint("Vertical", 2),
    Sketcher.Constraint("Horizontal", 3),
    Sketcher.Constraint("Symmetric", 0, 2, 1, 2, -1, 1),
    Sketcher.Constraint("DistanceX", 1, 1, 1, 2, 17.0),
    Sketcher.Constraint("DistanceY", 0, 2, 0, 1, 5.0),
])
pad6 = body.newObject("PartDesign::Pad", "Pad005")
pad6.Profile = sketch11
pad6.Length = 9

# Sketch on XZ plane
sketch12 = body.newObject("Sketcher::SketchObject", "Sketch011")
sketch12.AttachmentSupport = (doc.getObject("XZ_Plane"), [""])
sketch12.MapMode = "FlatFace"
sketch12.addGeometry([
    Part.Circle(Vector(-3.25, -54.75, 0), Vector(0, 0, 1), 1.6),
    Part.Circle(Vector(3.25, -54.75, 0), Vector(0, 0, 1), 1.6),
], False)
sketch12.addConstraint([
    Sketcher.Constraint("Equal", 0, 1),
    Sketcher.Constraint("Symmetric", 0, 3, 1, 3, -2),
    Sketcher.Constraint("Diameter", 0, 3.2),
    Sketcher.Constraint("DistanceX", 0, 3, 1, 3, 6.5),
    Sketcher.Constraint("DistanceY", 0, 3, -1, 1, 54.75),
])
pocket6 = body.newObject("PartDesign::Pocket", "Pocket005")
pocket6.Profile = sketch12
pocket6.Length = 5

# Sketch on XY plane
sketch13 = body.newObject("Sketcher::SketchObject", "Sketch012")
sketch13.AttachmentSupport = (doc.getObject("XY_Plane"), [""])
sketch13.MapMode = "FlatFace"
sketch13.AttachmentOffset = App.Placement(Vector(0, 0, -65), App.Rotation())
sketch13.addGeometry([
    Part.LineSegment(Vector(8.75, 5, 0), Vector(-8.75, 5, 0)),
    Part.LineSegment(Vector(-8.75, 5, 0), Vector(-8.75, 26.4, 0)),
    Part.LineSegment(Vector(-8.75, 26.4, 0), Vector(8.75, 26.4, 0)),
    Part.LineSegment(Vector(8.75, 26.4, 0), Vector(8.75, 5, 0)),
], False)
sketch13.addConstraint([
    Sketcher.Constraint("Coincident", 0, 2, 1, 1),
    Sketcher.Constraint("Coincident", 1, 2, 2, 1),
    Sketcher.Constraint("Coincident", 2, 2, 3, 1),
    Sketcher.Constraint("Coincident", 3, 2, 0, 1),
    Sketcher.Constraint("Horizontal", 0),
    Sketcher.Constraint("Vertical", 1),
    Sketcher.Constraint("Horizontal", 2),
    Sketcher.Constraint("Vertical", 3),
    Sketcher.Constraint("DistanceX", 0, 2, 0, 1, 17.5),
    Sketcher.Constraint("DistanceY", 1, 1, 1, 2, 21.4),
    Sketcher.Constraint("DistanceY", -1, 1, 0, 2, 5.0),
    Sketcher.Constraint("DistanceX", 0, 2, -1, 1, 8.75),
])
pocket7 = body.newObject("PartDesign::Pocket", "Pocket006")
pocket7.Profile = sketch13
pocket7.Length = 5
pocket7.Reversed = True

doc.recompute()
